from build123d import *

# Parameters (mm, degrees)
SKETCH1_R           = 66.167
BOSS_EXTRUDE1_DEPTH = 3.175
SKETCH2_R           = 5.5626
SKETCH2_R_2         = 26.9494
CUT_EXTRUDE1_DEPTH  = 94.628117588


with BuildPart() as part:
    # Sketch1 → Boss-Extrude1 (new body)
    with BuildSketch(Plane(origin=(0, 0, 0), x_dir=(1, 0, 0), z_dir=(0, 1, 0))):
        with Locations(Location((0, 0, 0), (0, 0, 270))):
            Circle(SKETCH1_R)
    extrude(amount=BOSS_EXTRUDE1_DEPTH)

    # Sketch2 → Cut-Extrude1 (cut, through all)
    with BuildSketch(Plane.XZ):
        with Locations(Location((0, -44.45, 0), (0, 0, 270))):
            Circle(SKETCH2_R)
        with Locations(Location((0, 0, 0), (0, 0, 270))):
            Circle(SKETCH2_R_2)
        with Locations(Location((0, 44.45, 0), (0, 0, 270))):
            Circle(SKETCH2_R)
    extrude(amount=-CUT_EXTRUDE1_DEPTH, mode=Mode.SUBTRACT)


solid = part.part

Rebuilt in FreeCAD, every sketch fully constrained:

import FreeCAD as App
import Part
import Sketcher

V = App.Vector
Q = App.Units.Quantity

doc = App.newDocument("Part")
body = doc.addObject("PartDesign::Body", "Body")

# Sketch on XZ plane
sketch1 = doc.addObject("Sketcher::SketchObject", "Sketch")
body.addObject(sketch1)
sketch1.AttachmentSupport = (doc.XZ_Plane, [""])
sketch1.MapMode = "FlatFace"
sketch1.addGeometry(Part.Circle(V(0, 0, 0), V(0, 0, 1), 66), False)
sketch1.addConstraint([
    Sketcher.Constraint("Coincident", 0, 3, -1, 1),
    Sketcher.Constraint("Diameter", 0, Q("5.21 in")),
])
pad1 = doc.addObject("PartDesign::Pad", "Pad")
body.addObject(pad1)
pad1.Profile = sketch1
pad1.Length = Q("0.125 in")
pad1.Reversed = True

# Sketch on XZ plane
sketch2 = doc.addObject("Sketcher::SketchObject", "Sketch001")
body.addObject(sketch2)
sketch2.AttachmentSupport = (doc.XZ_Plane, [""])
sketch2.MapMode = "FlatFace"
sketch2.addGeometry([
    Part.Circle(V(0, -44, 0), V(0, 0, 1), 6),
    Part.Circle(V(0, 0, 0), V(0, 0, 1), 27),
    Part.Circle(V(0, 44, 0), V(0, 0, 1), 6),
], False)
sketch2.addConstraint([
    Sketcher.Constraint("Coincident", 1, 3, -1, 1),
    Sketcher.Constraint("Equal", 0, 2),
    Sketcher.Constraint("Symmetric", 0, 3, 2, 3, -1, 1),
    Sketcher.Constraint("PointOnObject", 0, 3, -2),
    Sketcher.Constraint("Diameter", 0, Q("0.438 in")),
    Sketcher.Constraint("Diameter", 1, Q("2.122 in")),
    Sketcher.Constraint("DistanceY", 0, 3, 2, 3, Q("3.5 in")),
])
pocket1 = doc.addObject("PartDesign::Pocket", "Pocket")
body.addObject(pocket1)
pocket1.Profile = sketch2
pocket1.Type = "ThroughAll"

doc.recompute()
